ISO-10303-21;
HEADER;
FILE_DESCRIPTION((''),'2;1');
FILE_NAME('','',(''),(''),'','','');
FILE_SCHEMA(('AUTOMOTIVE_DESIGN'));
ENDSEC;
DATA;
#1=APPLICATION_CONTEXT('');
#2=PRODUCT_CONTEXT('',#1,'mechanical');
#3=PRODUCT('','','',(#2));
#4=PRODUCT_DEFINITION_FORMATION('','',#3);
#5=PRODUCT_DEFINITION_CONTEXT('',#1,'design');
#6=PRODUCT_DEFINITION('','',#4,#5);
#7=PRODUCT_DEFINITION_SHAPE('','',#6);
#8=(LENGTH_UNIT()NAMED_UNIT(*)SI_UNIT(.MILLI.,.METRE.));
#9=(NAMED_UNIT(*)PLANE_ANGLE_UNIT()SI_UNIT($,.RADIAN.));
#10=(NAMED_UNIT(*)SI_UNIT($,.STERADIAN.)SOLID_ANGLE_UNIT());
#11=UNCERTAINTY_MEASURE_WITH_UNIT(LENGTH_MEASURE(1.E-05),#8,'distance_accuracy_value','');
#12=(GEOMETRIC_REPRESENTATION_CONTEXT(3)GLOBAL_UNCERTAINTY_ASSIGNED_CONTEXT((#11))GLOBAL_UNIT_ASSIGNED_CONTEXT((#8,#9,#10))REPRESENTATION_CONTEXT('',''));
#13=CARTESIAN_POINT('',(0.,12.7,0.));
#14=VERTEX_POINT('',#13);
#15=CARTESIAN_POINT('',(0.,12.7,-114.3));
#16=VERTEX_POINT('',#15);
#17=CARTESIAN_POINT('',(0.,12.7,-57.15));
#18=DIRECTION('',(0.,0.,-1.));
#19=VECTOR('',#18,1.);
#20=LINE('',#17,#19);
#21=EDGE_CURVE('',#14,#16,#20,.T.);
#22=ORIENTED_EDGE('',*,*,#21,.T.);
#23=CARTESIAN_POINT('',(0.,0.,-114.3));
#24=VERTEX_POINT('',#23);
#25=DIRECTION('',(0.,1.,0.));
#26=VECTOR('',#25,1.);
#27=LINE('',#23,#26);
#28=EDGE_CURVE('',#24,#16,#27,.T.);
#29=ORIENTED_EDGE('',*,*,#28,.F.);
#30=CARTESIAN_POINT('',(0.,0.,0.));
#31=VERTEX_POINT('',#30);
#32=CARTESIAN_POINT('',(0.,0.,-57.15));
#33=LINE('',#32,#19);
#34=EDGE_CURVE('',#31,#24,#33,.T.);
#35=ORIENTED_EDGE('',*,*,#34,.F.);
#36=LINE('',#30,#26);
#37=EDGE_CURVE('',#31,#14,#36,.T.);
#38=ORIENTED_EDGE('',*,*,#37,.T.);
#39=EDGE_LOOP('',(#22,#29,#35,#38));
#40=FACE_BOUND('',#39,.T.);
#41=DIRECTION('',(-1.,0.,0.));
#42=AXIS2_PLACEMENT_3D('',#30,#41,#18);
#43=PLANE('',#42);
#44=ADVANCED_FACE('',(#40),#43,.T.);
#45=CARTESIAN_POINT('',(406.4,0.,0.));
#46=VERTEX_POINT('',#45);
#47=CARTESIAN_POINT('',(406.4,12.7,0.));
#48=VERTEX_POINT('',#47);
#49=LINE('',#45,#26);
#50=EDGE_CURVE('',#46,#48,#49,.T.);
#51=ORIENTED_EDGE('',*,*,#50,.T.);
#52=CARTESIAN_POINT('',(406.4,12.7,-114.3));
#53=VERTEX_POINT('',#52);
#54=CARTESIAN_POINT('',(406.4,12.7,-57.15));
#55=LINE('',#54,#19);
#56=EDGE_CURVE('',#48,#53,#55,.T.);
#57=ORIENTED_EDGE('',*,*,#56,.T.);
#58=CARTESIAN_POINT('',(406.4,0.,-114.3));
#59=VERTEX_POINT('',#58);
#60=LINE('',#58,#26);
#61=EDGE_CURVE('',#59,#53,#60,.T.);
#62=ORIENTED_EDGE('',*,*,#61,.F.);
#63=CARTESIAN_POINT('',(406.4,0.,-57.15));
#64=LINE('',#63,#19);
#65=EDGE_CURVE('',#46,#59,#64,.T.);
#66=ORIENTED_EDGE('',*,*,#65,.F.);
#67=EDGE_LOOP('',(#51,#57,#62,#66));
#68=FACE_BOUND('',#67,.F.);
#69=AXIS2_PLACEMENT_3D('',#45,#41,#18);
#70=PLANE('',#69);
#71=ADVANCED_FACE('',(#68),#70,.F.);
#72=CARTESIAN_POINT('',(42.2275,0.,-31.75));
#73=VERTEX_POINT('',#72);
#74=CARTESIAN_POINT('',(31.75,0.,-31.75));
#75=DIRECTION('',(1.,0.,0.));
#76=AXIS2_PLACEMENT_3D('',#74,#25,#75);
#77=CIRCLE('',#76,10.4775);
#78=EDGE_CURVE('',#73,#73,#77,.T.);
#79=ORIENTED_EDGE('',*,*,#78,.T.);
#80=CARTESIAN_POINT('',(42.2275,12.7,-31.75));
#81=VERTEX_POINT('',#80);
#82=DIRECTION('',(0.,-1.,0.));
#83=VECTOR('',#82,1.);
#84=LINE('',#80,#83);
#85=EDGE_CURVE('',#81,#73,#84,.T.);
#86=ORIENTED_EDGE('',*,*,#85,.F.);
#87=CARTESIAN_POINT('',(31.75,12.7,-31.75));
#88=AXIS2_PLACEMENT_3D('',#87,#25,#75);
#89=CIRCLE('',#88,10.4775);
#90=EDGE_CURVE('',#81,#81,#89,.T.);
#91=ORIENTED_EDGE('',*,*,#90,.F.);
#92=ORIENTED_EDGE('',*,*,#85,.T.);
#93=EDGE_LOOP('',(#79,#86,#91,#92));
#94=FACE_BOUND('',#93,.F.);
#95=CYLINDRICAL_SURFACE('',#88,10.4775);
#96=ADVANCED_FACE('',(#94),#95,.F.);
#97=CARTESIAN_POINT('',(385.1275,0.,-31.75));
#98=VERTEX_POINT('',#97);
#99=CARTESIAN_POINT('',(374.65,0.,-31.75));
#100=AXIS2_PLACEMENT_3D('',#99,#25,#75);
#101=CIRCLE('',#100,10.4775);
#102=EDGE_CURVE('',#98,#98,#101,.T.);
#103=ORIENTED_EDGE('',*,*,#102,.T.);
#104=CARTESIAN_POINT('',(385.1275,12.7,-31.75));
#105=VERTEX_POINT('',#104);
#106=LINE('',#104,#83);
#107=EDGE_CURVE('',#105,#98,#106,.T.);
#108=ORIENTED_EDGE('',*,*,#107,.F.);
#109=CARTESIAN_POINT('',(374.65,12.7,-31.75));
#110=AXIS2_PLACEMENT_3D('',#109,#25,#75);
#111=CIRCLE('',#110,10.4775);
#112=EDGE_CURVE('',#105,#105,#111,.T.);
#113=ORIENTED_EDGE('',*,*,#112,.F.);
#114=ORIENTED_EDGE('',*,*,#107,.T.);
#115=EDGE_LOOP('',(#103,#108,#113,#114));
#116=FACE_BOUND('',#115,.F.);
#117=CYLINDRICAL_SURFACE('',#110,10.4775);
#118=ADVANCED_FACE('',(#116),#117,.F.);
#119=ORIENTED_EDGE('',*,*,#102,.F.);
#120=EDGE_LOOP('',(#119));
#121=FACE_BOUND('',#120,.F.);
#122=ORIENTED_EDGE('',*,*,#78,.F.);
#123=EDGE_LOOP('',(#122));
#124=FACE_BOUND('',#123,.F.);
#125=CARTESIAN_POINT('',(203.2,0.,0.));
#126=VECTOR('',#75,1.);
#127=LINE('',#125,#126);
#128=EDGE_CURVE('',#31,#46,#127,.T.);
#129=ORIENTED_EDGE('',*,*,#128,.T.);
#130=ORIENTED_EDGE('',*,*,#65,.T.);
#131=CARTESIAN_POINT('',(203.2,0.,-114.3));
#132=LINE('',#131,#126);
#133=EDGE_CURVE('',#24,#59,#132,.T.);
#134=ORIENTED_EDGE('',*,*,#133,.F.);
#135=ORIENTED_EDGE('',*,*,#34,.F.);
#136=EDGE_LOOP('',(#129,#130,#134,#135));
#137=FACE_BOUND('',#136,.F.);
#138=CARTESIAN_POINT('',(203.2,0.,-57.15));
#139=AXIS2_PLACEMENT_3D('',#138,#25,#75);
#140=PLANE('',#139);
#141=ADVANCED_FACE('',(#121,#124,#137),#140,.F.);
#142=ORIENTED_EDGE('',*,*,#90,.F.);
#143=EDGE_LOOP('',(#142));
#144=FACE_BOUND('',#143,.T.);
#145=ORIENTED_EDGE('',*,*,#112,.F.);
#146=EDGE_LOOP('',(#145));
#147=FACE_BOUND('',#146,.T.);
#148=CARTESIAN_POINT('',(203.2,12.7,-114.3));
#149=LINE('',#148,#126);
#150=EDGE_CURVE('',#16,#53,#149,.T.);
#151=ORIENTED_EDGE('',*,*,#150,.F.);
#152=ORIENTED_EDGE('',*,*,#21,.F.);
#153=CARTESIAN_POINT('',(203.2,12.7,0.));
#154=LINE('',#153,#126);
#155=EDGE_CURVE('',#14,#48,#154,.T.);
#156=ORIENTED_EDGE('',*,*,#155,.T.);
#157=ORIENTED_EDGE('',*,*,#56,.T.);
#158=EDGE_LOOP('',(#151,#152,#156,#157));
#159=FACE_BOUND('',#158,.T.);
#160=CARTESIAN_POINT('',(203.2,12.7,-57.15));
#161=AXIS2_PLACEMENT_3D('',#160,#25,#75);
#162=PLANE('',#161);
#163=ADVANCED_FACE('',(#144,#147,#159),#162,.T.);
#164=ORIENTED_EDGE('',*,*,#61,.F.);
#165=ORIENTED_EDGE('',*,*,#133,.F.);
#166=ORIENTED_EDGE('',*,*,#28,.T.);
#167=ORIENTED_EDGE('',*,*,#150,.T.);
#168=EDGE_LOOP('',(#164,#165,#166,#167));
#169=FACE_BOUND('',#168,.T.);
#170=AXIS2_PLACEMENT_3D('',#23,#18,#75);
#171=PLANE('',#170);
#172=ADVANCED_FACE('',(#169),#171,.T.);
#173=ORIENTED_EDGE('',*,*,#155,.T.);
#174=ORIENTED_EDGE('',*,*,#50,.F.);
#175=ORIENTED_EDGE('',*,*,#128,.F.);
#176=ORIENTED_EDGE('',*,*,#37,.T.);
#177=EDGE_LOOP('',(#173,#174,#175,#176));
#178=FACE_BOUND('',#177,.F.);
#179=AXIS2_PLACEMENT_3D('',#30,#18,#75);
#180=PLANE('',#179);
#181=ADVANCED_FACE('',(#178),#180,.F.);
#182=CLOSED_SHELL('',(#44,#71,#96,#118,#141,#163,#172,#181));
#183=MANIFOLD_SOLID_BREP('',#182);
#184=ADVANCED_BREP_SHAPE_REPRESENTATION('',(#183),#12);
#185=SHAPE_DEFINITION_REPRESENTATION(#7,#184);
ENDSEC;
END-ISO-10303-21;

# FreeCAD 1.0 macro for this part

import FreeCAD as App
import Part
import Sketcher
from FreeCAD import Vector
Q = App.Units.Quantity


def add_polygon(sketch, points):
    """Adds a closed chain of lines whose ends are joined by coincident constraints."""
    first, n = sketch.GeometryCount, len(points)
    for a, b in zip(points, points[1:] + points[:1]):
        sketch.addGeometry(Part.LineSegment(App.Vector(*a, 0), App.Vector(*b, 0)), False)
    for i in range(n):
        sketch.addConstraint(Sketcher.Constraint("Coincident", first + i, 2, first + (i + 1) % n, 1))

doc = App.newDocument("Part")
params = doc.addObject("Spreadsheet::Sheet", "Params")
for row, (alias, value) in enumerate([
    ("sketch1_width", "16 in"),
    ("sketch1_height", "4.5 in"),
    ("pad1_length", "0.5 in"),
    ("sketch2_diameter", "0.825 in"),
    ("sketch3_diameter", "0.825 in"),
], start=1):
    params.set(f"A{row}", alias)
    params.set(f"B{row}", "=" + value)
    params.setAlias(f"B{row}", alias)

body = doc.addObject("PartDesign::Body", "Body")

# Sketch on XZ plane
sketch1 = body.newObject("Sketcher::SketchObject", "Sketch")
sketch1.AttachmentSupport = (doc.getObject("XZ_Plane"), [""])
sketch1.MapMode = "FlatFace"
add_polygon(sketch1, [(0, -114), (0, 0), (406, 0), (406, -114)])  # lines 0-3
sketch1.addConstraint([
    Sketcher.Constraint("Vertical", 0),
    Sketcher.Constraint("Horizontal", 1),
    Sketcher.Constraint("Vertical", 2),
    Sketcher.Constraint("Horizontal", 3),
    Sketcher.Constraint("Coincident", 0, 2, -1, 1),
    Sketcher.Constraint("DistanceX", 1, 1, 1, 2, Q("16 in")),
    Sketcher.Constraint("DistanceY", 0, 1, 0, 2, Q("4.5 in")),
])
sketch1.setExpression("Constraints[9]", "Params.sketch1_width")
sketch1.setExpression("Constraints[10]", "Params.sketch1_height")
pad1 = body.newObject("PartDesign::Pad", "Pad")
pad1.Profile = sketch1
pad1.setExpression("Length", "Params.pad1_length")
pad1.Reversed = True

# Sketch on XZ plane
sketch2 = body.newObject("Sketcher::SketchObject", "Sketch001")
sketch2.AttachmentSupport = (doc.getObject("XZ_Plane"), [""])
sketch2.MapMode = "FlatFace"
sketch2.AttachmentOffset = App.Placement(Vector(0, 0, -0.5 * 25.4), App.Rotation())
sketch2.addGeometry(Part.Circle(Vector(32, -32, 0), Vector(0, 0, 1), 10), False)
sketch2.addConstraint([
    Sketcher.Constraint("Diameter", 0, Q("0.825 in")),
    Sketcher.Constraint("DistanceX", -1, 1, 0, 3, Q("1.25 in")),
    Sketcher.Constraint("DistanceY", 0, 3, -1, 1, Q("1.25 in")),
])
sketch2.setExpression("Constraints[0]", "Params.sketch2_diameter")
pocket1 = body.newObject("PartDesign::Pocket", "Pocket")
pocket1.Profile = sketch2
pocket1.Type = "UpToFirst"
pocket1.Reversed = True

# Sketch on XZ plane
sketch3 = body.newObject("Sketcher::SketchObject", "Sketch002")
sketch3.AttachmentSupport = (doc.getObject("XZ_Plane"), [""])
sketch3.MapMode = "FlatFace"
sketch3.AttachmentOffset = App.Placement(Vector(0, 0, -0.5 * 25.4), App.Rotation())
sketch3.addGeometry(Part.Circle(Vector(375, -32, 0), Vector(0, 0, 1), 10), False)
sketch3.addConstraint([
    Sketcher.Constraint("Diameter", 0, Q("0.825 in")),
    Sketcher.Constraint("DistanceX", -1, 1, 0, 3, Q("14.75 in")),
    Sketcher.Constraint("DistanceY", 0, 3, -1, 1, Q("1.25 in")),
])
sketch3.setExpression("Constraints[0]", "Params.sketch3_diameter")
pocket2 = body.newObject("PartDesign::Pocket", "Pocket001")
pocket2.Profile = sketch3
pocket2.Type = "UpToFirst"
pocket2.Reversed = True

doc.recompute()
